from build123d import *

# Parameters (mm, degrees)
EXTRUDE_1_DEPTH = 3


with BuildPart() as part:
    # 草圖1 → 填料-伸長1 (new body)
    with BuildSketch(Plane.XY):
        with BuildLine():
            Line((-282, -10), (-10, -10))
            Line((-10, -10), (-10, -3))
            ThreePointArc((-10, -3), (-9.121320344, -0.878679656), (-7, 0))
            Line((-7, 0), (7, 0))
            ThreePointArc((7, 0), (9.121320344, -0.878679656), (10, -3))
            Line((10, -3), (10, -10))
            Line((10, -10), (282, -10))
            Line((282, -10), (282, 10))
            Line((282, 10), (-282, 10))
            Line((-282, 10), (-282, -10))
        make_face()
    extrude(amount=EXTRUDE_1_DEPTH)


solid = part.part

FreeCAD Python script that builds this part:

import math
import FreeCAD as App
import Part
import Sketcher
from FreeCAD import Vector
Q = App.Units.Quantity

doc = App.newDocument("Part")
body = doc.addObject("PartDesign::Body", "Body")

# Sketch on XY plane
sketch1 = body.newObject("Sketcher::SketchObject", "Sketch")
sketch1.AttachmentSupport = (doc.getObject("XY_Plane"), [""])
sketch1.MapMode = "FlatFace"
sketch1.addGeometry([
    Part.LineSegment(Vector(-282, -10, 0), Vector(-10, -10, 0)),  # 0
    Part.LineSegment(Vector(-10, -10, 0), Vector(-10, -3, 0)),  # 1
    Part.ArcOfCircle(Part.Circle(Vector(-7, -3, 0), Vector(0, 0, 1), 3), math.radians(90), math.radians(180)),  # 2
    Part.LineSegment(Vector(-7, 0, 0), Vector(7, 0, 0)),  # 3
    Part.ArcOfCircle(Part.Circle(Vector(7, -3, 0), Vector(0, 0, 1), 3), math.radians(0), math.radians(90)),  # 4
    Part.LineSegment(Vector(10, -3, 0), Vector(10, -10, 0)),  # 5
    Part.LineSegment(Vector(10, -10, 0), Vector(282, -10, 0)),  # 6
    Part.LineSegment(Vector(282, -10, 0), Vector(282, 10, 0)),  # 7
    Part.LineSegment(Vector(282, 10, 0), Vector(-282, 10, 0)),  # 8
    Part.LineSegment(Vector(-282, 10, 0), Vector(-282, -10, 0)),  # 9
], False)
sketch1.addConstraint([
    Sketcher.Constraint("Coincident", 0, 2, 1, 1),
    Sketcher.Constraint("Tangent", 1, 2, 2, 2),
    Sketcher.Constraint("Tangent", 2, 1, 3, 1),
    Sketcher.Constraint("Tangent", 3, 2, 4, 2),
    Sketcher.Constraint("Tangent", 4, 1, 5, 1),
    Sketcher.Constraint("Coincident", 5, 2, 6, 1),
    Sketcher.Constraint("Coincident", 6, 2, 7, 1),
    Sketcher.Constraint("Coincident", 7, 2, 8, 1),
    Sketcher.Constraint("Coincident", 8, 2, 9, 1),
    Sketcher.Constraint("Coincident", 9, 2, 0, 1),
    Sketcher.Constraint("Horizontal", 0),
    Sketcher.Constraint("Vertical", 1),
    Sketcher.Constraint("Horizontal", 3),
    Sketcher.Constraint("Vertical", 5),
    Sketcher.Constraint("Horizontal", 6),
    Sketcher.Constraint("Vertical", 7),
    Sketcher.Constraint("Horizontal", 8),
    Sketcher.Constraint("Vertical", 9),
    Sketcher.Constraint("Equal", 2, 4),
    Sketcher.Constraint("Symmetric", 2, 1, 3, 2, -1, 1),
    Sketcher.Constraint("Symmetric", 6, 2, 8, 2, -1, 1),
    Sketcher.Constraint("Horizontal", 0, 2, 5, 2),
    Sketcher.Constraint("Radius", 2, Q("3 mm")),
    Sketcher.Constraint("DistanceX", 0, 1, 0, 2, Q("272 mm")),
    Sketcher.Constraint("DistanceX", 3, 1, 3, 2, Q("14 mm")),
    Sketcher.Constraint("DistanceY", 1, 1, 1, 2, Q("7 mm")),
])
pad1 = body.newObject("PartDesign::Pad", "Pad")
pad1.Profile = sketch1
pad1.Length = 3

doc.recompute()
